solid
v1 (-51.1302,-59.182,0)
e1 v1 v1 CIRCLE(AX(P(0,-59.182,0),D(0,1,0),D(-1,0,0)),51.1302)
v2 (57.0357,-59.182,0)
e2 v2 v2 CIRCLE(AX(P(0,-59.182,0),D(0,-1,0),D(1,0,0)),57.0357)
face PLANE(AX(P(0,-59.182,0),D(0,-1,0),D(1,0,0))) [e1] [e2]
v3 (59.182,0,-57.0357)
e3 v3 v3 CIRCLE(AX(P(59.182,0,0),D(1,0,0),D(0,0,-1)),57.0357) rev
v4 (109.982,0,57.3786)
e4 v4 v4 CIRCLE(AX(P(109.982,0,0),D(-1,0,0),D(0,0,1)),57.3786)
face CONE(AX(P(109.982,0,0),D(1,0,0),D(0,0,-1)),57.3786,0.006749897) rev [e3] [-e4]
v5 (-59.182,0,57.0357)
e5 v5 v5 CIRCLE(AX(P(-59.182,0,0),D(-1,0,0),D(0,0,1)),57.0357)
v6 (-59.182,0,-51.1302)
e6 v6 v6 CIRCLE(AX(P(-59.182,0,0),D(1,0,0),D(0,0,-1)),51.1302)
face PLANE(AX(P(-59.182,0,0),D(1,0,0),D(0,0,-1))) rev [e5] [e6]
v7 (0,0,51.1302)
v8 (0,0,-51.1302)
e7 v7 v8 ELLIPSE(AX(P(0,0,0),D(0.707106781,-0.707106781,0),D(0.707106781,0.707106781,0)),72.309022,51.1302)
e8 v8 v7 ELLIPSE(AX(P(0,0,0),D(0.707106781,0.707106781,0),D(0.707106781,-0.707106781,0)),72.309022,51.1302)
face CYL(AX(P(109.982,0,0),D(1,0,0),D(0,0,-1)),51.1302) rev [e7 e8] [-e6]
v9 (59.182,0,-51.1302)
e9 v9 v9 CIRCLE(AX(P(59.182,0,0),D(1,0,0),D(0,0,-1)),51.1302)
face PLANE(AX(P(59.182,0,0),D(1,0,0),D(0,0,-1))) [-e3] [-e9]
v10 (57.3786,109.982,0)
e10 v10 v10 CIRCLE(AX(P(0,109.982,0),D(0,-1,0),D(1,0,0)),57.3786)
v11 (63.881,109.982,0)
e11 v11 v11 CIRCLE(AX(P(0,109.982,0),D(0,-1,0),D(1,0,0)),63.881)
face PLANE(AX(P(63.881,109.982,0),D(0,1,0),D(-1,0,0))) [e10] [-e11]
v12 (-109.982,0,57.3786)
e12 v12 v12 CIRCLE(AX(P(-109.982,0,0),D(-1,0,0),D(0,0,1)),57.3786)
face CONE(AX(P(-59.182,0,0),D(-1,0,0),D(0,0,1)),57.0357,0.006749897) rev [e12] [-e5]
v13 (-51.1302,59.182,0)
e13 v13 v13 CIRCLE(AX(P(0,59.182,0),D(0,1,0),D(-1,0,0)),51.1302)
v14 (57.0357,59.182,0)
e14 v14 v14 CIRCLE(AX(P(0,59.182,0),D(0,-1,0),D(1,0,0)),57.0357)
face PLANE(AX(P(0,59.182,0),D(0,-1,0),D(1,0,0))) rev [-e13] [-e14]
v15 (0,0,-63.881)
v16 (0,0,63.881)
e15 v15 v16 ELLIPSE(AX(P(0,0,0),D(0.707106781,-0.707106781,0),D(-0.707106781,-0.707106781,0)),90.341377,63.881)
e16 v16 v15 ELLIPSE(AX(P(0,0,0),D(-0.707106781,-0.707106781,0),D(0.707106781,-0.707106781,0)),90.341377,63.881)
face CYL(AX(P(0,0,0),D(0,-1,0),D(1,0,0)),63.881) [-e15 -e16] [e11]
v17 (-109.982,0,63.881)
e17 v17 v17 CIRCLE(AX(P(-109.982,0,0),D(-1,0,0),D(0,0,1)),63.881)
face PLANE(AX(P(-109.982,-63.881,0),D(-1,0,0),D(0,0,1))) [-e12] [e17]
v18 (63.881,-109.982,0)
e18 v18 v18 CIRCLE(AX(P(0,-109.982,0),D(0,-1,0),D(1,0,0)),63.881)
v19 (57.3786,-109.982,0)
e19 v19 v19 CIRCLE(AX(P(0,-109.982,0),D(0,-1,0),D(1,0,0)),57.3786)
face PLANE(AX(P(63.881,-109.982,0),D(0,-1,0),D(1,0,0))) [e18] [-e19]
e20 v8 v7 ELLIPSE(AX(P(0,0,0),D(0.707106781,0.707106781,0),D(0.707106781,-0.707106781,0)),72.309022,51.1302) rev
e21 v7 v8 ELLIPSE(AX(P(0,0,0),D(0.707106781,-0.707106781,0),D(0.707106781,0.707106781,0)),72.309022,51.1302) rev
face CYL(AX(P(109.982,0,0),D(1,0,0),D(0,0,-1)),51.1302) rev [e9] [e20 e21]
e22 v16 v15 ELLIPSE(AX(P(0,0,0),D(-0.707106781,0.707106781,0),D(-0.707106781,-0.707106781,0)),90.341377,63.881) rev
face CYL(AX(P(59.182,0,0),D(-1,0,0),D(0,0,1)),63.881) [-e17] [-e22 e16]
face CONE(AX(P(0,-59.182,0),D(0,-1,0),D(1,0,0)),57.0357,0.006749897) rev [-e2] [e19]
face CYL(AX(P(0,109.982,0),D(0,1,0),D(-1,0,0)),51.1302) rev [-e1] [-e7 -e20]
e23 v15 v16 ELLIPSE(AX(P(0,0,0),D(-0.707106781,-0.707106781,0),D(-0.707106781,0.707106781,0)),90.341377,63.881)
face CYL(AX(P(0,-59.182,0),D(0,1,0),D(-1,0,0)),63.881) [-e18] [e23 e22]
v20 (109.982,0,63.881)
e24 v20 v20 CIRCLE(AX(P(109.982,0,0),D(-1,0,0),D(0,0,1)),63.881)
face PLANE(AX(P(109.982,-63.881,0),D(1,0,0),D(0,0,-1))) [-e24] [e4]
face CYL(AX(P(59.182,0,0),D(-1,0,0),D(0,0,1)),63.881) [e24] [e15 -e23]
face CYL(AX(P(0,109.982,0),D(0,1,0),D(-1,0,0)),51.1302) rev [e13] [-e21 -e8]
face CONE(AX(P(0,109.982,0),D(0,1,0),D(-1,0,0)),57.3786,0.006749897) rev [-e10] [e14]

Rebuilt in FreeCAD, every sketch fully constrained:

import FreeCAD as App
import Part
import Sketcher

V = App.Vector
Q = App.Units.Quantity

doc = App.newDocument("Part")
body = doc.addObject("PartDesign::Body", "Body")
body.AllowCompound = True

sketch1 = doc.addObject("Sketcher::SketchObject", "Sketch")
body.addObject(sketch1)
sketch1.AttachmentSupport = (doc.XY_Plane, [""])
sketch1.MapMode = "FlatFace"
sketch1.addGeometry(Part.LineSegment(V(-110, -64, 0), V(-59, -64, 0)), False)
sketch1.addGeometry(Part.LineSegment(V(-59, -64, 0), V(-59, -57, 0)), False)
sketch1.addGeometry(Part.LineSegment(V(-59, -57, 0), V(-110, -57, 0)), False)
sketch1.addGeometry(Part.LineSegment(V(-110, -57, 0), V(-110, -64, 0)), False)
sketch1.addGeometry(Part.LineSegment(V(110, -57, 0), V(59, -57, 0)), False)
sketch1.addGeometry(Part.LineSegment(V(59, -57, 0), V(59, -64, 0)), False)
sketch1.addGeometry(Part.LineSegment(V(59, -64, 0), V(110, -64, 0)), False)
sketch1.addGeometry(Part.LineSegment(V(110, -64, 0), V(110, -57, 0)), False)
sketch1.addConstraint(Sketcher.Constraint("Coincident", 0, 2, 1, 1))
sketch1.addConstraint(Sketcher.Constraint("Coincident", 1, 2, 2, 1))
sketch1.addConstraint(Sketcher.Constraint("Coincident", 2, 2, 3, 1))
sketch1.addConstraint(Sketcher.Constraint("Coincident", 3, 2, 0, 1))
sketch1.addConstraint(Sketcher.Constraint("Coincident", 4, 2, 5, 1))
sketch1.addConstraint(Sketcher.Constraint("Coincident", 5, 2, 6, 1))
sketch1.addConstraint(Sketcher.Constraint("Coincident", 6, 2, 7, 1))
sketch1.addConstraint(Sketcher.Constraint("Coincident", 7, 2, 4, 1))
sketch1.addConstraint(Sketcher.Constraint("Horizontal", 0))
sketch1.addConstraint(Sketcher.Constraint("Vertical", 1))
sketch1.addConstraint(Sketcher.Constraint("Vertical", 3))
sketch1.addConstraint(Sketcher.Constraint("Vertical", 5))
sketch1.addConstraint(Sketcher.Constraint("Horizontal", 6))
sketch1.addConstraint(Sketcher.Constraint("Vertical", 7))
sketch1.addConstraint(Sketcher.Constraint("Symmetric", 1, 2, 4, 2, -2))
sketch1.addConstraint(Sketcher.Constraint("Symmetric", 3, 2, 6, 2, -2))
sketch1.addConstraint(Sketcher.Constraint("Horizontal", 2, 2, 7, 2))
sketch1.addConstraint(Sketcher.Constraint("DistanceX", 0, 1, 0, 2, Q("2 in")))
sketch1.addConstraint(Sketcher.Constraint("DistanceY", 3, 2, 3, 1, Q("0.256 in")))
sketch1.addConstraint(Sketcher.Constraint("DistanceX", 0, 2, -1, 1, Q("2.33 in")))
sketch1.addConstraint(Sketcher.Constraint("DistanceY", 1, 1, 1, 2, Q("0.2695 in")))
sketch1.addConstraint(Sketcher.Constraint("DistanceY", 0, 2, -1, 1, Q("2.515 in")))
revolution = doc.addObject("PartDesign::Revolution", "Revolution")
body.addObject(revolution)
revolution.Profile = sketch1
revolution.ReferenceAxis = (sketch1, ["H_Axis"])
revolution.Angle = 360
body2 = doc.addObject("PartDesign::Body", "Body001")
body2.AllowCompound = True

sketch2 = doc.addObject("Sketcher::SketchObject", "Sketch001")
body2.addObject(sketch2)
sketch2.AttachmentSupport = (doc.getObject("XY_Plane001"), [""])
sketch2.MapMode = "FlatFace"
sketch2.addGeometry(Part.LineSegment(V(57, 110, 0), V(57, 59, 0)), False)
sketch2.addGeometry(Part.LineSegment(V(57, 59, 0), V(64, 59, 0)), False)
sketch2.addGeometry(Part.LineSegment(V(64, 59, 0), V(64, 110, 0)), False)
sketch2.addGeometry(Part.LineSegment(V(64, 110, 0), V(57, 110, 0)), False)
sketch2.addGeometry(Part.LineSegment(V(57, -110, 0), V(64, -110, 0)), False)
sketch2.addGeometry(Part.LineSegment(V(64, -110, 0), V(64, -59, 0)), False)
sketch2.addGeometry(Part.LineSegment(V(64, -59, 0), V(57, -59, 0)), False)
sketch2.addGeometry(Part.LineSegment(V(57, -59, 0), V(57, -110, 0)), False)
sketch2.addConstraint(Sketcher.Constraint("Coincident", 0, 2, 1, 1))
sketch2.addConstraint(Sketcher.Constraint("Coincident", 1, 2, 2, 1))
sketch2.addConstraint(Sketcher.Constraint("Coincident", 2, 2, 3, 1))
sketch2.addConstraint(Sketcher.Constraint("Coincident", 3, 2, 0, 1))
sketch2.addConstraint(Sketcher.Constraint("Coincident", 4, 2, 5, 1))
sketch2.addConstraint(Sketcher.Constraint("Coincident", 5, 2, 6, 1))
sketch2.addConstraint(Sketcher.Constraint("Coincident", 6, 2, 7, 1))
sketch2.addConstraint(Sketcher.Constraint("Coincident", 7, 2, 4, 1))
sketch2.addConstraint(Sketcher.Constraint("Horizontal", 1))
sketch2.addConstraint(Sketcher.Constraint("Vertical", 2))
sketch2.addConstraint(Sketcher.Constraint("Horizontal", 3))
sketch2.addConstraint(Sketcher.Constraint("Horizontal", 4))
sketch2.addConstraint(Sketcher.Constraint("Vertical", 5))
sketch2.addConstraint(Sketcher.Constraint("Horizontal", 6))
sketch2.addConstraint(Sketcher.Constraint("Symmetric", 2, 2, 4, 2, -1))
sketch2.addConstraint(Sketcher.Constraint("Symmetric", 0, 2, 6, 2, -1))
sketch2.addConstraint(Sketcher.Constraint("Vertical", 3, 2, 7, 2))
sketch2.addConstraint(Sketcher.Constraint("DistanceY", 2, 1, 2, 2, Q("2 in")))
sketch2.addConstraint(Sketcher.Constraint("DistanceX", 3, 2, 3, 1, Q("0.256 in")))
sketch2.addConstraint(Sketcher.Constraint("DistanceY", -1, 1, 0, 2, Q("2.33 in")))
sketch2.addConstraint(Sketcher.Constraint("DistanceX", 1, 1, 1, 2, Q("0.2695 in")))
sketch2.addConstraint(Sketcher.Constraint("DistanceX", -1, 1, 1, 2, Q("2.515 in")))
revolution2 = doc.addObject("PartDesign::Revolution", "Revolution001")
body2.addObject(revolution2)
revolution2.Profile = sketch2
revolution2.ReferenceAxis = (sketch2, ["V_Axis"])
revolution2.Angle = 360
doc.recompute()

boolean = doc.addObject("PartDesign::Boolean", "Boolean")
body.addObject(boolean)
boolean.Type = "Fuse"
boolean.addObjects([body2])

sketch3 = doc.addObject("Sketcher::SketchObject", "Sketch002")
body.addObject(sketch3)
sketch3.AttachmentSupport = (doc.YZ_Plane, [""])
sketch3.MapMode = "FlatFace"
sketch3.AttachmentOffset = App.Placement(V(0, 0, -2.33 * 25.4), App.Rotation())
sketch3.addGeometry(Part.Circle(V(0, 0, 0), V(0, 0, 1), 64), False)
sketch3.addConstraint(Sketcher.Constraint("Coincident", 0, 3, -1, 1))
sketch3.addConstraint(Sketcher.Constraint("Diameter", 0, Q("5.03 in")))
pad1 = doc.addObject("PartDesign::Pad", "Pad")
body.addObject(pad1)
pad1.Profile = sketch3
pad1.Length = Q("6.66 in")

sketch4 = doc.addObject("Sketcher::SketchObject", "Sketch003")
body.addObject(sketch4)
sketch4.AttachmentSupport = (doc.XZ_Plane, [""])
sketch4.MapMode = "FlatFace"
sketch4.AttachmentOffset = App.Placement(V(0, 0, -2.33 * 25.4), App.Rotation())
sketch4.addGeometry(Part.Circle(V(0, 0, 0), V(0, 0, 1), 64), False)
sketch4.addConstraint(Sketcher.Constraint("Coincident", 0, 3, -1, 1))
sketch4.addConstraint(Sketcher.Constraint("Diameter", 0, Q("5.03 in")))
pad2 = doc.addObject("PartDesign::Pad", "Pad001")
body.addObject(pad2)
pad2.Profile = sketch4
pad2.Length = Q("6.66 in")

sketch5 = doc.addObject("Sketcher::SketchObject", "Sketch004")
body.addObject(sketch5)
sketch5.AttachmentSupport = (doc.XY_Plane, [""])
sketch5.MapMode = "FlatFace"
sketch5.addGeometry(Part.LineSegment(V(-110, -57, 0), V(-59, -57, 0)), False)
sketch5.addGeometry(Part.LineSegment(V(-59, -57, 0), V(-59, -51, 0)), False)
sketch5.addGeometry(Part.LineSegment(V(-59, -51, 0), V(59, -51, 0)), False)
sketch5.addGeometry(Part.LineSegment(V(59, -51, 0), V(59, -57, 0)), False)
sketch5.addGeometry(Part.LineSegment(V(59, -57, 0), V(110, -57, 0)), False)
sketch5.addGeometry(Part.LineSegment(V(110, -57, 0), V(110, 0, 0)), False)
sketch5.addGeometry(Part.LineSegment(V(110, 0, 0), V(-110, 0, 0)), False)
sketch5.addGeometry(Part.LineSegment(V(-110, 0, 0), V(-110, -57, 0)), False)
sketch5.addConstraint(Sketcher.Constraint("Coincident", 0, 2, 1, 1))
sketch5.addConstraint(Sketcher.Constraint("Coincident", 1, 2, 2, 1))
sketch5.addConstraint(Sketcher.Constraint("Coincident", 2, 2, 3, 1))
sketch5.addConstraint(Sketcher.Constraint("Coincident", 3, 2, 4, 1))
sketch5.addConstraint(Sketcher.Constraint("Coincident", 4, 2, 5, 1))
sketch5.addConstraint(Sketcher.Constraint("Coincident", 5, 2, 6, 1))
sketch5.addConstraint(Sketcher.Constraint("Coincident", 6, 2, 7, 1))
sketch5.addConstraint(Sketcher.Constraint("Coincident", 7, 2, 0, 1))
sketch5.addConstraint(Sketcher.Constraint("Vertical", 1))
sketch5.addConstraint(Sketcher.Constraint("Horizontal", 2))
sketch5.addConstraint(Sketcher.Constraint("Vertical", 3))
sketch5.addConstraint(Sketcher.Constraint("Vertical", 5))
sketch5.addConstraint(Sketcher.Constraint("Horizontal", 6))
sketch5.addConstraint(Sketcher.Constraint("Vertical", 7))
sketch5.addConstraint(Sketcher.Constraint("Symmetric", 5, 2, 6, 2, -1, 1))
sketch5.addConstraint(Sketcher.Constraint("Symmetric", 0, 2, 3, 2, -2))
sketch5.addConstraint(Sketcher.Constraint("Horizontal", 4, 2, 7, 2))
sketch5.addConstraint(Sketcher.Constraint("DistanceX", 3, 2, 4, 2, Q("2 in")))
sketch5.addConstraint(Sketcher.Constraint("DistanceX", 2, 1, 2, 2, Q("4.66 in")))
sketch5.addConstraint(Sketcher.Constraint("DistanceY", 5, 1, 5, 2, Q("2.259 in")))
sketch5.addConstraint(Sketcher.Constraint("DistanceY", 1, 1, 1, 2, Q("0.2325 in")))
sketch5.addConstraint(Sketcher.Constraint("DistanceY", 1, 2, -1, 1, Q("2.013 in")))
groove = doc.addObject("PartDesign::Groove", "Groove")
body.addObject(groove)
groove.Profile = sketch5
groove.ReferenceAxis = (sketch5, ["H_Axis"])
groove.Angle = 360

sketch6 = doc.addObject("Sketcher::SketchObject", "Sketch005")
body.addObject(sketch6)
sketch6.AttachmentSupport = (doc.XY_Plane, [""])
sketch6.MapMode = "FlatFace"
sketch6.addGeometry(Part.LineSegment(V(57, 59, 0), V(57, 110, 0)), False)
sketch6.addGeometry(Part.LineSegment(V(57, 110, 0), V(0, 110, 0)), False)
sketch6.addGeometry(Part.LineSegment(V(0, 110, 0), V(0, -110, 0)), False)
sketch6.addGeometry(Part.LineSegment(V(0, -110, 0), V(57, -110, 0)), False)
sketch6.addGeometry(Part.LineSegment(V(57, -110, 0), V(57, -59, 0)), False)
sketch6.addGeometry(Part.LineSegment(V(57, -59, 0), V(51, -59, 0)), False)
sketch6.addGeometry(Part.LineSegment(V(51, -59, 0), V(51, 59, 0)), False)
sketch6.addGeometry(Part.LineSegment(V(51, 59, 0), V(57, 59, 0)), False)
sketch6.addConstraint(Sketcher.Constraint("Coincident", 0, 2, 1, 1))
sketch6.addConstraint(Sketcher.Constraint("Coincident", 1, 2, 2, 1))
sketch6.addConstraint(Sketcher.Constraint("Coincident", 2, 2, 3, 1))
sketch6.addConstraint(Sketcher.Constraint("Coincident", 3, 2, 4, 1))
sketch6.addConstraint(Sketcher.Constraint("Coincident", 4, 2, 5, 1))
sketch6.addConstraint(Sketcher.Constraint("Coincident", 5, 2, 6, 1))
sketch6.addConstraint(Sketcher.Constraint("Coincident", 6, 2, 7, 1))
sketch6.addConstraint(Sketcher.Constraint("Coincident", 7, 2, 0, 1))
sketch6.addConstraint(Sketcher.Constraint("Horizontal", 1))
sketch6.addConstraint(Sketcher.Constraint("Vertical", 2))
sketch6.addConstraint(Sketcher.Constraint("Horizontal", 3))
sketch6.addConstraint(Sketcher.Constraint("Horizontal", 5))
sketch6.addConstraint(Sketcher.Constraint("Vertical", 6))
sketch6.addConstraint(Sketcher.Constraint("Horizontal", 7))
sketch6.addConstraint(Sketcher.Constraint("Symmetric", 1, 2, 2, 2, -1, 1))
sketch6.addConstraint(Sketcher.Constraint("Symmetric", 4, 2, 7, 2, -1))
sketch6.addConstraint(Sketcher.Constraint("Vertical", 0, 2, 3, 2))
sketch6.addConstraint(Sketcher.Constraint("DistanceY", 3, 2, 4, 2, Q("2 in")))
sketch6.addConstraint(Sketcher.Constraint("DistanceY", 2, 2, 2, 1, Q("8.66 in")))
sketch6.addConstraint(Sketcher.Constraint("DistanceX", 1, 2, 1, 1, Q("2.259 in")))
sketch6.addConstraint(Sketcher.Constraint("DistanceX", 5, 2, 5, 1, Q("0.2325 in")))
sketch6.addConstraint(Sketcher.Constraint("DistanceX", -1, 1, 5, 2, Q("2.013 in")))
groove2 = doc.addObject("PartDesign::Groove", "Groove001")
body.addObject(groove2)
groove2.Profile = sketch6
groove2.ReferenceAxis = (sketch6, ["V_Axis"])
groove2.Angle = 360

doc.recompute()
